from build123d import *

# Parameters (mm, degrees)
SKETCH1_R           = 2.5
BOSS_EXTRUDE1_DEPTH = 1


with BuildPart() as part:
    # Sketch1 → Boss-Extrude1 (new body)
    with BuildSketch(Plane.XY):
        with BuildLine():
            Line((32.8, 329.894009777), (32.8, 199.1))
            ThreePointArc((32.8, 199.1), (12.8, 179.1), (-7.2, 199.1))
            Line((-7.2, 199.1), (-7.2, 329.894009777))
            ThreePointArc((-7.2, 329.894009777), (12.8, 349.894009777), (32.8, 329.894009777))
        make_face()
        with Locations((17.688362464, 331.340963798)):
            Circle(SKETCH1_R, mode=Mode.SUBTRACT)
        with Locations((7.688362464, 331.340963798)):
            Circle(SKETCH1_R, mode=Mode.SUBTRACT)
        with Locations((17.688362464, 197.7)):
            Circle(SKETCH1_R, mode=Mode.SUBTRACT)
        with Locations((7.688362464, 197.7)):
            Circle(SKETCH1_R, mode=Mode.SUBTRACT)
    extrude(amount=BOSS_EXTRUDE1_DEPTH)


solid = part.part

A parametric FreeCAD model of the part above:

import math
import FreeCAD as App
import Part
import Sketcher
Q = App.Units.Quantity

doc = App.newDocument("Part")
params = doc.addObject("Spreadsheet::Sheet", "Params")
for row, (alias, value) in enumerate([
    ("sketch1_diameter", "5 mm"),
    ("sketch1_radius", "20 mm"),
    ("pad1_length", "1 mm"),
], start=1):
    params.set(f"A{row}", alias)
    params.set(f"B{row}", "=" + value)
    params.setAlias(f"B{row}", alias)

body = doc.addObject("PartDesign::Body", "Body")

# Sketch on XY plane
sketch1 = body.newObject("Sketcher::SketchObject", "Sketch")
sketch1.AttachmentSupport = (doc.getObject("XY_Plane"), [""])
sketch1.MapMode = "FlatFace"
sketch1.addGeometry(Part.LineSegment(App.Vector(32.8, 199.1, 0), App.Vector(32.8, 329.9, 0)), False)
sketch1.addGeometry(Part.ArcOfCircle(Part.Circle(App.Vector(12.8, 329.9, 0), App.Vector(0, 0, 1), 20), math.radians(0), math.radians(180)), False)
sketch1.addGeometry(Part.LineSegment(App.Vector(-7.2, 329.9, 0), App.Vector(-7.2, 199.1, 0)), False)
sketch1.addGeometry(Part.ArcOfCircle(Part.Circle(App.Vector(12.8, 199.1, 0), App.Vector(0, 0, 1), 20), math.radians(180), math.radians(360)), False)
sketch1.addGeometry(Part.Circle(App.Vector(17.7, 197.7, 0), App.Vector(0, 0, 1), 2.5), False)
sketch1.addGeometry(Part.Circle(App.Vector(7.7, 197.7, 0), App.Vector(0, 0, 1), 2.5), False)
sketch1.addGeometry(Part.Circle(App.Vector(17.7, 331.3, 0), App.Vector(0, 0, 1), 2.5), False)
sketch1.addGeometry(Part.Circle(App.Vector(7.7, 331.3, 0), App.Vector(0, 0, 1), 2.5), False)
sketch1.addConstraint(Sketcher.Constraint("Tangent", 0, 2, 1, 1))
sketch1.addConstraint(Sketcher.Constraint("Tangent", 1, 2, 2, 1))
sketch1.addConstraint(Sketcher.Constraint("Tangent", 2, 2, 3, 1))
sketch1.addConstraint(Sketcher.Constraint("Tangent", 3, 2, 0, 1))
sketch1.addConstraint(Sketcher.Constraint("Vertical", 0))
sketch1.addConstraint(Sketcher.Constraint("Vertical", 2))
sketch1.addConstraint(Sketcher.Constraint("Equal", 4, 5))
sketch1.addConstraint(Sketcher.Constraint("Equal", 5, 6))
sketch1.addConstraint(Sketcher.Constraint("Equal", 6, 7))
sketch1.addConstraint(Sketcher.Constraint("Horizontal", 4, 3, 5, 3))
sketch1.addConstraint(Sketcher.Constraint("Horizontal", 6, 3, 7, 3))
sketch1.addConstraint(Sketcher.Constraint("Vertical", 4, 3, 6, 3))
sketch1.addConstraint(Sketcher.Constraint("Vertical", 5, 3, 7, 3))
sketch1.addConstraint(Sketcher.Constraint("Diameter", 4, Q("5 mm")))
sketch1.addConstraint(Sketcher.Constraint("Radius", 1, Q("20 mm")))
sketch1.addConstraint(Sketcher.Constraint("DistanceX", 5, 3, 4, 3, Q("10 mm")))
sketch1.addConstraint(Sketcher.Constraint("DistanceX", -1, 1, 1, 3, Q("12.8 mm")))
sketch1.addConstraint(Sketcher.Constraint("DistanceY", -1, 1, 3, 3, Q("199.1 mm")))
sketch1.addConstraint(Sketcher.Constraint("DistanceY", -1, 1, 4, 3, Q("197.7 mm")))
sketch1.addConstraint(Sketcher.Constraint("DistanceY", 0, 1, 0, 2, Q("130.79401 mm")))
sketch1.addConstraint(Sketcher.Constraint("DistanceX", -1, 1, 4, 3, Q("17.688362 mm")))
sketch1.addConstraint(Sketcher.Constraint("DistanceY", -1, 1, 6, 3, Q("331.340964 mm")))
sketch1.setExpression("Constraints[13]", "Params.sketch1_diameter")
sketch1.setExpression("Constraints[14]", "Params.sketch1_radius")
pad1 = body.newObject("PartDesign::Pad", "Pad")
pad1.Profile = sketch1
pad1.setExpression("Length", "Params.pad1_length")

doc.recompute()
